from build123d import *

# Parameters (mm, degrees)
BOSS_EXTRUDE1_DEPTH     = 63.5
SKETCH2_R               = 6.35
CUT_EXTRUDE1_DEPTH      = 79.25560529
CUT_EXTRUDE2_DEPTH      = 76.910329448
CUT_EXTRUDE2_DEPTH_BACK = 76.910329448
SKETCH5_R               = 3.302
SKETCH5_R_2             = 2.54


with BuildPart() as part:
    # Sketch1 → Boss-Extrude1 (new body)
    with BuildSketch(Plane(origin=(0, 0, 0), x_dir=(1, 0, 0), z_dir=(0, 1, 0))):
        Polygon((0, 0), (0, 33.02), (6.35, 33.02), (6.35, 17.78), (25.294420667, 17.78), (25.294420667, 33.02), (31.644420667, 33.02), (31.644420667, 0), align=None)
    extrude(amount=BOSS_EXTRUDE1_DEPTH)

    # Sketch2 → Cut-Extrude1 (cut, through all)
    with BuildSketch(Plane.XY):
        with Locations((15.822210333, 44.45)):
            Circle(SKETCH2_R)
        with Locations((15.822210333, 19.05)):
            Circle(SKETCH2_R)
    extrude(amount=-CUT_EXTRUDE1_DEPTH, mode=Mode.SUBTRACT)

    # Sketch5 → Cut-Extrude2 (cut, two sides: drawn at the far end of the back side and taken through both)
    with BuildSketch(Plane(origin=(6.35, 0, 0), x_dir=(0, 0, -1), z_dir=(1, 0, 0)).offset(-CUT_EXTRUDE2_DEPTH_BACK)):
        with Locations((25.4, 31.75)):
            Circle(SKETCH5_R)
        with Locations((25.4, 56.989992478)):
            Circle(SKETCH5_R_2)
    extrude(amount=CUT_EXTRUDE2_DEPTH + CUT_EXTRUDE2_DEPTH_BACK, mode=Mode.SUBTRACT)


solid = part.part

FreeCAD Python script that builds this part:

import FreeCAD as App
import Part
import Sketcher
from FreeCAD import Vector
Q = App.Units.Quantity

doc = App.newDocument("Part")
body = doc.addObject("PartDesign::Body", "Body")

# Sketch on XZ plane
sketch1 = body.newObject("Sketcher::SketchObject", "Sketch")
sketch1.AttachmentSupport = (doc.getObject("XZ_Plane"), [""])
sketch1.MapMode = "FlatFace"
sketch1.addGeometry([
    Part.LineSegment(Vector(0, -33, 0), Vector(0, 0, 0)),  # 0
    Part.LineSegment(Vector(0, 0, 0), Vector(32, 0, 0)),  # 1
    Part.LineSegment(Vector(32, 0, 0), Vector(32, -33, 0)),  # 2
    Part.LineSegment(Vector(32, -33, 0), Vector(25, -33, 0)),  # 3
    Part.LineSegment(Vector(25, -33, 0), Vector(25, -18, 0)),  # 4
    Part.LineSegment(Vector(25, -18, 0), Vector(6, -18, 0)),  # 5
    Part.LineSegment(Vector(6, -18, 0), Vector(6, -33, 0)),  # 6
    Part.LineSegment(Vector(6, -33, 0), Vector(0, -33, 0)),  # 7
], False)
sketch1.addConstraint([
    Sketcher.Constraint("Coincident", 0, 2, 1, 1),
    Sketcher.Constraint("Coincident", 1, 2, 2, 1),
    Sketcher.Constraint("Coincident", 2, 2, 3, 1),
    Sketcher.Constraint("Coincident", 3, 2, 4, 1),
    Sketcher.Constraint("Coincident", 4, 2, 5, 1),
    Sketcher.Constraint("Coincident", 5, 2, 6, 1),
    Sketcher.Constraint("Coincident", 6, 2, 7, 1),
    Sketcher.Constraint("Coincident", 7, 2, 0, 1),
    Sketcher.Constraint("Vertical", 0),
    Sketcher.Constraint("Horizontal", 1),
    Sketcher.Constraint("Vertical", 2),
    Sketcher.Constraint("Horizontal", 3),
    Sketcher.Constraint("Vertical", 4),
    Sketcher.Constraint("Horizontal", 5),
    Sketcher.Constraint("Vertical", 6),
    Sketcher.Constraint("Horizontal", 7),
    Sketcher.Constraint("Coincident", 0, 2, -1, 1),
    Sketcher.Constraint("Horizontal", 3, 2, 6, 2),
    Sketcher.Constraint("Equal", 3, 7),
    Sketcher.Constraint("DistanceY", 0, 1, 0, 2, Q("1.3 in")),
    Sketcher.Constraint("DistanceY", 4, 1, 4, 2, Q("0.6 in")),
    Sketcher.Constraint("DistanceX", 3, 2, 3, 1, Q("0.25 in")),
    Sketcher.Constraint("DistanceX", 1, 1, 1, 2, Q("31.644421 mm")),
])
pad1 = body.newObject("PartDesign::Pad", "Pad")
pad1.Profile = sketch1
pad1.Length = Q("2.5 in")
pad1.Reversed = True

# Sketch on XY plane
sketch2 = body.newObject("Sketcher::SketchObject", "Sketch001")
sketch2.AttachmentSupport = (doc.getObject("XY_Plane"), [""])
sketch2.MapMode = "FlatFace"
sketch2.addGeometry([
    Part.Circle(Vector(16, 44, 0), Vector(0, 0, 1), 6),
    Part.Circle(Vector(16, 19, 0), Vector(0, 0, 1), 6),
], False)
sketch2.addConstraint([
    Sketcher.Constraint("Equal", 0, 1),
    Sketcher.Constraint("Vertical", 0, 3, 1, 3),
    Sketcher.Constraint("Diameter", 0, Q("0.5 in")),
    Sketcher.Constraint("DistanceY", 1, 3, 0, 3, Q("1 in")),
    Sketcher.Constraint("DistanceY", -1, 1, 0, 3, Q("1.75 in")),
    Sketcher.Constraint("DistanceX", -1, 1, 0, 3, Q("15.82221 mm")),
])
pocket1 = body.newObject("PartDesign::Pocket", "Pocket")
pocket1.Profile = sketch2
pocket1.Type = "ThroughAll"

# Sketch on YZ plane
sketch3 = body.newObject("Sketcher::SketchObject", "Sketch002")
sketch3.AttachmentSupport = (doc.getObject("YZ_Plane"), [""])
sketch3.MapMode = "FlatFace"
sketch3.AttachmentOffset = App.Placement(Vector(0, 0, 0.25 * 25.4), App.Rotation())
sketch3.addGeometry([
    Part.Circle(Vector(31.8, -25.4, 0), Vector(0, 0, 1), 3.3),
    Part.Circle(Vector(57, -25.4, 0), Vector(0, 0, 1), 2.5),
], False)
sketch3.addConstraint([
    Sketcher.Constraint("Horizontal", 0, 3, 1, 3),
    Sketcher.Constraint("Diameter", 1, Q("0.2 in")),
    Sketcher.Constraint("Diameter", 0, Q("0.26 in")),
    Sketcher.Constraint("DistanceY", 0, 3, -1, 1, Q("1 in")),
    Sketcher.Constraint("DistanceX", -1, 1, 0, 3, Q("1.25 in")),
    Sketcher.Constraint("DistanceX", -1, 1, 1, 3, Q("56.989992 mm")),
])
pocket2 = body.newObject("PartDesign::Pocket", "Pocket001")
pocket2.Profile = sketch3
pocket2.Type = "ThroughAll"
pocket2.Midplane = True

doc.recompute()
